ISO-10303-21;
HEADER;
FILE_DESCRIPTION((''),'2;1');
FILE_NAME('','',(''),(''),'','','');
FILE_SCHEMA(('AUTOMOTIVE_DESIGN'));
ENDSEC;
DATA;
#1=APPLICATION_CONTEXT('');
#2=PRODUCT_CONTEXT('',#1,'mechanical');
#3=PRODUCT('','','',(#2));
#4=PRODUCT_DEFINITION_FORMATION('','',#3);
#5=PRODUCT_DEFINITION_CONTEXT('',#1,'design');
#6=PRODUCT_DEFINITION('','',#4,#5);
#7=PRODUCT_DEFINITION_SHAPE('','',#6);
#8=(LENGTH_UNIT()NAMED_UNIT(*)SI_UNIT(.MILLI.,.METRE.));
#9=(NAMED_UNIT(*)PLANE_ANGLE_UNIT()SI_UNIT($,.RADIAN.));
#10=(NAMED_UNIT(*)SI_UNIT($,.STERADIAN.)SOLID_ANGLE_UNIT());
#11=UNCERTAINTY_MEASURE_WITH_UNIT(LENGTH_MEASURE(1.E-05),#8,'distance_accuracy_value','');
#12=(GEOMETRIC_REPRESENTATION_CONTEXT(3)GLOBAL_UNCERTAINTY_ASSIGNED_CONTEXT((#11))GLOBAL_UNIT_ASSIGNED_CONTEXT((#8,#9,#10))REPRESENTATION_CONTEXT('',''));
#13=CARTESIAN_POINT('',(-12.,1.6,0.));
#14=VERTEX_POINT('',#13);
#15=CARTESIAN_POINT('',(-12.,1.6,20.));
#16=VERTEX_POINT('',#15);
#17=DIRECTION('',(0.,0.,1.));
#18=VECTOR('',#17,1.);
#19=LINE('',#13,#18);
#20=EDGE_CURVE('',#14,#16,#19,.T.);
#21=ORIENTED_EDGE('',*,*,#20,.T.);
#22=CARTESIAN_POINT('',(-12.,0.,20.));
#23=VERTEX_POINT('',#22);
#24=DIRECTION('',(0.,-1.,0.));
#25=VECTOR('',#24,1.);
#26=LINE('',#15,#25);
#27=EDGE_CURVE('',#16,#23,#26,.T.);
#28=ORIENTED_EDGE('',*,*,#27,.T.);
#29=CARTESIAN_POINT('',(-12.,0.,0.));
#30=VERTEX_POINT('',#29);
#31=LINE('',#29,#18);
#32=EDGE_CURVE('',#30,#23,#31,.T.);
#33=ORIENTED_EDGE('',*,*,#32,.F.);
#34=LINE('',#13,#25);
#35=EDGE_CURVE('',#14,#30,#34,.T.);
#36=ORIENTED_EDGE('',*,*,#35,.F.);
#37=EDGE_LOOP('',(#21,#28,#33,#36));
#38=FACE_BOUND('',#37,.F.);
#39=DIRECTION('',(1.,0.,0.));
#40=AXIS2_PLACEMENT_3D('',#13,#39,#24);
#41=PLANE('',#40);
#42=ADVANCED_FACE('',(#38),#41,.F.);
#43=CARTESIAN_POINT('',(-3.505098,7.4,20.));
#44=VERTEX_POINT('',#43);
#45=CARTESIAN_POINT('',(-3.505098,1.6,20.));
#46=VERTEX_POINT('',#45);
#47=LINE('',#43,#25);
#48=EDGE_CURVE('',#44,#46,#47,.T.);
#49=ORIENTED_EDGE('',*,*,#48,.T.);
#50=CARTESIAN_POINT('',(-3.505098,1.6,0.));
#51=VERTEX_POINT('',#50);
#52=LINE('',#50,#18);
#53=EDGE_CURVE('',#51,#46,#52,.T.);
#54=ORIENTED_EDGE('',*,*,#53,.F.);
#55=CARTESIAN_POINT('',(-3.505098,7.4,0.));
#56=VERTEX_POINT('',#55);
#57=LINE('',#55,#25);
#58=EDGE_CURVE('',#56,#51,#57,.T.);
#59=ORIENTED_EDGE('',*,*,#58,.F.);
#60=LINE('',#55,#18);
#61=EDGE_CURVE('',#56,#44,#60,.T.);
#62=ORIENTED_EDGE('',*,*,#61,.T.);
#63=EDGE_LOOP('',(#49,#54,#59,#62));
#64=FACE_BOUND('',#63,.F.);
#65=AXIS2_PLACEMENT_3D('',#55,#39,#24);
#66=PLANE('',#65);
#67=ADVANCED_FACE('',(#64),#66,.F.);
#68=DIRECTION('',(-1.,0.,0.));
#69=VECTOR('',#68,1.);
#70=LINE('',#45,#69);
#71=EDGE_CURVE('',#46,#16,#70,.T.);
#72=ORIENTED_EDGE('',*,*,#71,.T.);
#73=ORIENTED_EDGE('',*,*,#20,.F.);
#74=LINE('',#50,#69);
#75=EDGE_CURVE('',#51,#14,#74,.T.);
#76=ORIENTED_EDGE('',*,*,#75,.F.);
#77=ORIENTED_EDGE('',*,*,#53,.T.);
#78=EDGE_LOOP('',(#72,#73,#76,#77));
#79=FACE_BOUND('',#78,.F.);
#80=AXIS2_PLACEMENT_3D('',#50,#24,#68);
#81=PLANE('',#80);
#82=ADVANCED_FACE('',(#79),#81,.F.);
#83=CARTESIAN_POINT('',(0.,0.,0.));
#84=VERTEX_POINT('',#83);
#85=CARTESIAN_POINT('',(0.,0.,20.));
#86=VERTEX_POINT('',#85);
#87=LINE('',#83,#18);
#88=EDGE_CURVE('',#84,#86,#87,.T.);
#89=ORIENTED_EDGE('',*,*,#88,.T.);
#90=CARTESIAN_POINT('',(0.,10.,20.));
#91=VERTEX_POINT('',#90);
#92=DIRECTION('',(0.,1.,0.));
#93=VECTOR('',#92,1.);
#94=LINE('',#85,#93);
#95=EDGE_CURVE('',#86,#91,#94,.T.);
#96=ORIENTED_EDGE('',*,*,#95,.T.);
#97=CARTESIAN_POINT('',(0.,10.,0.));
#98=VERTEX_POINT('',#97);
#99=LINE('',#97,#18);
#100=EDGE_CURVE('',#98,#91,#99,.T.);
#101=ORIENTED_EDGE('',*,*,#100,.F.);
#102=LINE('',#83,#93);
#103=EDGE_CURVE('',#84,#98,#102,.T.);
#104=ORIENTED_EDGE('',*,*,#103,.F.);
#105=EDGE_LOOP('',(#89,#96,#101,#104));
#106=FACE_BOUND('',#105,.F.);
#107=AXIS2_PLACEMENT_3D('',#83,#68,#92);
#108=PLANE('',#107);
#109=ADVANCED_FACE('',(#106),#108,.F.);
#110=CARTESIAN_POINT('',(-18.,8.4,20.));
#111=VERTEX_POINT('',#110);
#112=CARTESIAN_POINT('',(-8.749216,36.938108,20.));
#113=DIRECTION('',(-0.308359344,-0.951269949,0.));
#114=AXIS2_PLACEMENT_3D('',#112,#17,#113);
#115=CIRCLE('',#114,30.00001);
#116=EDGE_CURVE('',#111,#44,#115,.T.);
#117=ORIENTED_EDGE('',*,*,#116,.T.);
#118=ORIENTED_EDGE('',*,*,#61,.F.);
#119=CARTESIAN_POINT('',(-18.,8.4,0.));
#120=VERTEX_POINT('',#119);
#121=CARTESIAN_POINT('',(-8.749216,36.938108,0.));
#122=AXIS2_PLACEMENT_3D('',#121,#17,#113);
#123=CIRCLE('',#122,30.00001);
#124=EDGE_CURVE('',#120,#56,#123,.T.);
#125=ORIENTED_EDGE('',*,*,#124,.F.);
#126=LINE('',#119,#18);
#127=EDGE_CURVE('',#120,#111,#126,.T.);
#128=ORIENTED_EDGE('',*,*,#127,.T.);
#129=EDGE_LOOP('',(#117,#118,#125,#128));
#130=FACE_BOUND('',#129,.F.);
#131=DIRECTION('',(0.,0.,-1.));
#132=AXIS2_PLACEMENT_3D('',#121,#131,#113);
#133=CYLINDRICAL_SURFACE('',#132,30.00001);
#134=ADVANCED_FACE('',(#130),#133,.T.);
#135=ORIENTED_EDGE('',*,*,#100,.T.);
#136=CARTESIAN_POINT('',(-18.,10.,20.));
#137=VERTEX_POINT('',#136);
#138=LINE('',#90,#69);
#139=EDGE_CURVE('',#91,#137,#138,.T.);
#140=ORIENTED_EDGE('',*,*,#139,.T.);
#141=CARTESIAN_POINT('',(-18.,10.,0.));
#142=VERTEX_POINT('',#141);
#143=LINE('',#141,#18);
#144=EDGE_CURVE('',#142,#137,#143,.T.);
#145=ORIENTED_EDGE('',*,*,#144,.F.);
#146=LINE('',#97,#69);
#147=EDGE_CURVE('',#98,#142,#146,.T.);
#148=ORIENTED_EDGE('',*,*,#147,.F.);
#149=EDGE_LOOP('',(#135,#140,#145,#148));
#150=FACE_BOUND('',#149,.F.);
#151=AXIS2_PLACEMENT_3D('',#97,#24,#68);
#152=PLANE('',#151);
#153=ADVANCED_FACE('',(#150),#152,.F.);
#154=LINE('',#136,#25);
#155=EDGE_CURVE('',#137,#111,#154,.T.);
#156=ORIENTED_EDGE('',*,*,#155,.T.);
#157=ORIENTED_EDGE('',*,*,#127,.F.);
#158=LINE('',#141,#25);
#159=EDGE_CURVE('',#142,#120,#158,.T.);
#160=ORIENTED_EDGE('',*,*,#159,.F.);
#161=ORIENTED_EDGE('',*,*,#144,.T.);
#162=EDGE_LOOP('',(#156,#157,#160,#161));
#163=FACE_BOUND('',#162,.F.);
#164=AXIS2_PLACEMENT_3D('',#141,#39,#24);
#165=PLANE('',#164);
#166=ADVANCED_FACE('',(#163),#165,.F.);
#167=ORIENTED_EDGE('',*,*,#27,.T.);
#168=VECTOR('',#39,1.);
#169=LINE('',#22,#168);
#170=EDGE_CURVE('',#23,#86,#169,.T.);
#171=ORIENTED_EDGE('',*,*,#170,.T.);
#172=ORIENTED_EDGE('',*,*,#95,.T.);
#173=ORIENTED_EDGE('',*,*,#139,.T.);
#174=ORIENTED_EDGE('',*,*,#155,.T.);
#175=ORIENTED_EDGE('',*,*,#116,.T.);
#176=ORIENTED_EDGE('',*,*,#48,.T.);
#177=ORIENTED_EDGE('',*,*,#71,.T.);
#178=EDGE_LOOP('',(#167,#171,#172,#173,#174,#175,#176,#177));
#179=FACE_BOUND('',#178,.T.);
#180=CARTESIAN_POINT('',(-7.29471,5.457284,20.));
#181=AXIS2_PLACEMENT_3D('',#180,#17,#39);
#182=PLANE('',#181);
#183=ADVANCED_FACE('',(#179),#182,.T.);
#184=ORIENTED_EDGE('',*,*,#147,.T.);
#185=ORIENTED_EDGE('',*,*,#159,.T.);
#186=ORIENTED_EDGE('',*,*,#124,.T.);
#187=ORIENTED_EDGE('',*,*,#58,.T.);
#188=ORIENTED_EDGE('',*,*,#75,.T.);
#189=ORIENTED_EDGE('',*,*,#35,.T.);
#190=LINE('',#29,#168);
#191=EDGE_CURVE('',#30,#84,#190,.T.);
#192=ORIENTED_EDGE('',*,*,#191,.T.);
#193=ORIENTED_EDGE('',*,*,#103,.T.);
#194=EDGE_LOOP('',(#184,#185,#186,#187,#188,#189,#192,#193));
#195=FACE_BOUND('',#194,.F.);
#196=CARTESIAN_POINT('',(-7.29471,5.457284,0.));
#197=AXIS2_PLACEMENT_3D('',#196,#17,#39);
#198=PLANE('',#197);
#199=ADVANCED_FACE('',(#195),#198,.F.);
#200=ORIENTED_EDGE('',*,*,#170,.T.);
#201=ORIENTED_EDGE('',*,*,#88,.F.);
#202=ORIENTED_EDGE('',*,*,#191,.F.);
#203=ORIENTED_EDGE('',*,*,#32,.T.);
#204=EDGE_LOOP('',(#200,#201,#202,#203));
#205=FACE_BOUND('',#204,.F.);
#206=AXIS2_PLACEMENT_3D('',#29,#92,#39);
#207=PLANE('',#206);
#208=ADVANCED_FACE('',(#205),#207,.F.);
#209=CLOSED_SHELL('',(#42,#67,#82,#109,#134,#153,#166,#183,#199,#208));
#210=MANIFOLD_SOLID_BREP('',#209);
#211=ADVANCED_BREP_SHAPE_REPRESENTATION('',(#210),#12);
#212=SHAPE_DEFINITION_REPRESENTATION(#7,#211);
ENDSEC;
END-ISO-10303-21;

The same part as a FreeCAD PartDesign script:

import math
import FreeCAD as App
import Part
import Sketcher

V = App.Vector

doc = App.newDocument("Part")
body = doc.addObject("PartDesign::Body", "Body")

# Sketch on XY plane
sketch1 = doc.addObject("Sketcher::SketchObject", "Sketch")
body.addObject(sketch1)
sketch1.AttachmentSupport = (doc.XY_Plane, [""])
sketch1.MapMode = "FlatFace"
sketch1.addGeometry(Part.LineSegment(V(-12, 1.6, 0), V(-12, 0, 0)), False)
sketch1.addGeometry(Part.LineSegment(V(-12, 0, 0), V(0, 0, 0)), False)
sketch1.addGeometry(Part.LineSegment(V(0, 0, 0), V(0, 10, 0)), False)
sketch1.addGeometry(Part.LineSegment(V(0, 10, 0), V(-18, 10, 0)), False)
sketch1.addGeometry(Part.LineSegment(V(-18, 10, 0), V(-18, 8.4, 0)), False)
sketch1.addGeometry(Part.ArcOfCircle(Part.Circle(V(-8.7, 36.9, 0), V(0, 0, 1), 30), math.radians(-108), math.radians(-80)), False)
sketch1.addGeometry(Part.LineSegment(V(-3.5, 7.4, 0), V(-3.5, 1.6, 0)), False)
sketch1.addGeometry(Part.LineSegment(V(-3.5, 1.6, 0), V(-12, 1.6, 0)), False)
sketch1.addConstraint(Sketcher.Constraint("Coincident", 0, 2, 1, 1))
sketch1.addConstraint(Sketcher.Constraint("Coincident", 1, 2, 2, 1))
sketch1.addConstraint(Sketcher.Constraint("Coincident", 2, 2, 3, 1))
sketch1.addConstraint(Sketcher.Constraint("Coincident", 3, 2, 4, 1))
sketch1.addConstraint(Sketcher.Constraint("Coincident", 4, 2, 5, 1))
sketch1.addConstraint(Sketcher.Constraint("Coincident", 5, 2, 6, 1))
sketch1.addConstraint(Sketcher.Constraint("Coincident", 6, 2, 7, 1))
sketch1.addConstraint(Sketcher.Constraint("Coincident", 7, 2, 0, 1))
sketch1.addConstraint(Sketcher.Constraint("Vertical", 0))
sketch1.addConstraint(Sketcher.Constraint("Horizontal", 1))
sketch1.addConstraint(Sketcher.Constraint("Vertical", 2))
sketch1.addConstraint(Sketcher.Constraint("Horizontal", 3))
sketch1.addConstraint(Sketcher.Constraint("Vertical", 4))
sketch1.addConstraint(Sketcher.Constraint("Vertical", 6))
sketch1.addConstraint(Sketcher.Constraint("Horizontal", 7))
sketch1.addConstraint(Sketcher.Constraint("Coincident", 1, 2, -1, 1))
sketch1.addConstraint(Sketcher.Constraint("Equal", 0, 4))
sketch1.addConstraint(Sketcher.Constraint("DistanceX", 1, 1, 1, 2, 12.0))
sketch1.addConstraint(Sketcher.Constraint("DistanceX", 3, 2, 3, 1, 18.0))
sketch1.addConstraint(Sketcher.Constraint("DistanceY", 2, 1, 2, 2, 10.0))
sketch1.addConstraint(Sketcher.Constraint("DistanceY", 0, 2, 0, 1, 1.6))
sketch1.addConstraint(Sketcher.Constraint("DistanceY", 6, 2, 6, 1, 5.8))
sketch1.addConstraint(Sketcher.Constraint("Radius", 5, 30.00001))
sketch1.addConstraint(Sketcher.Constraint("DistanceX", 7, 2, 7, 1, 8.494902))
pad1 = doc.addObject("PartDesign::Pad", "Pad")
body.addObject(pad1)
pad1.Profile = sketch1
pad1.Length = 20

doc.recompute()
